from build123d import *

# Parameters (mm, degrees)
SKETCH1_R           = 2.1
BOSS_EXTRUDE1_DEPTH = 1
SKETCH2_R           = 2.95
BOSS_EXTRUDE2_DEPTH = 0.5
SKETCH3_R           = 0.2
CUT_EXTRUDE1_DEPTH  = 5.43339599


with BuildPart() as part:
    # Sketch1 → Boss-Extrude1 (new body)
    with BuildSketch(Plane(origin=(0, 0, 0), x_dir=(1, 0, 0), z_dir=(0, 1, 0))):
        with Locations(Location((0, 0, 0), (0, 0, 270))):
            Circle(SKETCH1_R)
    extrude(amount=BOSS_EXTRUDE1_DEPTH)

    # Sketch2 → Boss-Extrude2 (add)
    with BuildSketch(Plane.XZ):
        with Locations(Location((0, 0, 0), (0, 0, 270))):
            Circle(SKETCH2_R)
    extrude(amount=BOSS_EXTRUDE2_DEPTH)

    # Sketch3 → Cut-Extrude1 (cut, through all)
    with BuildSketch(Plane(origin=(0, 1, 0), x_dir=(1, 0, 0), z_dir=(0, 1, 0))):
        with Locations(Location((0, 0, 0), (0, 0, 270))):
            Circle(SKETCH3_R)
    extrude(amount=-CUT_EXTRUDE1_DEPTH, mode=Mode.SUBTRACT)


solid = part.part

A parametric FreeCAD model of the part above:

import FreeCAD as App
import Part
import Sketcher

V = App.Vector

doc = App.newDocument("Part")
body = doc.addObject("PartDesign::Body", "Body")

# Sketch on XZ plane
sketch1 = body.newObject("Sketcher::SketchObject", "Sketch")
sketch1.AttachmentSupport = (doc.getObject("XZ_Plane"), [""])
sketch1.MapMode = "FlatFace"
sketch1.addGeometry(Part.Circle(V(0, 0, 0), V(0, 0, 1), 2.1), False)
sketch1.addConstraint(Sketcher.Constraint("Coincident", 0, 3, -1, 1))
sketch1.addConstraint(Sketcher.Constraint("Diameter", 0, 4.2))
pad1 = body.newObject("PartDesign::Pad", "Pad")
pad1.Profile = sketch1
pad1.Length = 1
pad1.Reversed = True

# Sketch on XZ plane
sketch2 = body.newObject("Sketcher::SketchObject", "Sketch001")
sketch2.AttachmentSupport = (doc.getObject("XZ_Plane"), [""])
sketch2.MapMode = "FlatFace"
sketch2.addGeometry(Part.Circle(V(0, 0, 0), V(0, 0, 1), 2.95), False)
sketch2.addConstraint(Sketcher.Constraint("Coincident", 0, 3, -1, 1))
sketch2.addConstraint(Sketcher.Constraint("Diameter", 0, 5.9))
pad2 = body.newObject("PartDesign::Pad", "Pad001")
pad2.Profile = sketch2
pad2.Length = 0.5

# Sketch on XZ plane
sketch3 = body.newObject("Sketcher::SketchObject", "Sketch002")
sketch3.AttachmentSupport = (doc.getObject("XZ_Plane"), [""])
sketch3.MapMode = "FlatFace"
sketch3.AttachmentOffset = App.Placement(V(0, 0, -1), App.Rotation())
sketch3.addGeometry(Part.Circle(V(0, 0, 0), V(0, 0, 1), 0.2), False)
sketch3.addConstraint(Sketcher.Constraint("Coincident", 0, 3, -1, 1))
sketch3.addConstraint(Sketcher.Constraint("Diameter", 0, 0.4))
pocket1 = body.newObject("PartDesign::Pocket", "Pocket")
pocket1.Profile = sketch3
pocket1.Type = "ThroughAll"
pocket1.Reversed = True

doc.recompute()
